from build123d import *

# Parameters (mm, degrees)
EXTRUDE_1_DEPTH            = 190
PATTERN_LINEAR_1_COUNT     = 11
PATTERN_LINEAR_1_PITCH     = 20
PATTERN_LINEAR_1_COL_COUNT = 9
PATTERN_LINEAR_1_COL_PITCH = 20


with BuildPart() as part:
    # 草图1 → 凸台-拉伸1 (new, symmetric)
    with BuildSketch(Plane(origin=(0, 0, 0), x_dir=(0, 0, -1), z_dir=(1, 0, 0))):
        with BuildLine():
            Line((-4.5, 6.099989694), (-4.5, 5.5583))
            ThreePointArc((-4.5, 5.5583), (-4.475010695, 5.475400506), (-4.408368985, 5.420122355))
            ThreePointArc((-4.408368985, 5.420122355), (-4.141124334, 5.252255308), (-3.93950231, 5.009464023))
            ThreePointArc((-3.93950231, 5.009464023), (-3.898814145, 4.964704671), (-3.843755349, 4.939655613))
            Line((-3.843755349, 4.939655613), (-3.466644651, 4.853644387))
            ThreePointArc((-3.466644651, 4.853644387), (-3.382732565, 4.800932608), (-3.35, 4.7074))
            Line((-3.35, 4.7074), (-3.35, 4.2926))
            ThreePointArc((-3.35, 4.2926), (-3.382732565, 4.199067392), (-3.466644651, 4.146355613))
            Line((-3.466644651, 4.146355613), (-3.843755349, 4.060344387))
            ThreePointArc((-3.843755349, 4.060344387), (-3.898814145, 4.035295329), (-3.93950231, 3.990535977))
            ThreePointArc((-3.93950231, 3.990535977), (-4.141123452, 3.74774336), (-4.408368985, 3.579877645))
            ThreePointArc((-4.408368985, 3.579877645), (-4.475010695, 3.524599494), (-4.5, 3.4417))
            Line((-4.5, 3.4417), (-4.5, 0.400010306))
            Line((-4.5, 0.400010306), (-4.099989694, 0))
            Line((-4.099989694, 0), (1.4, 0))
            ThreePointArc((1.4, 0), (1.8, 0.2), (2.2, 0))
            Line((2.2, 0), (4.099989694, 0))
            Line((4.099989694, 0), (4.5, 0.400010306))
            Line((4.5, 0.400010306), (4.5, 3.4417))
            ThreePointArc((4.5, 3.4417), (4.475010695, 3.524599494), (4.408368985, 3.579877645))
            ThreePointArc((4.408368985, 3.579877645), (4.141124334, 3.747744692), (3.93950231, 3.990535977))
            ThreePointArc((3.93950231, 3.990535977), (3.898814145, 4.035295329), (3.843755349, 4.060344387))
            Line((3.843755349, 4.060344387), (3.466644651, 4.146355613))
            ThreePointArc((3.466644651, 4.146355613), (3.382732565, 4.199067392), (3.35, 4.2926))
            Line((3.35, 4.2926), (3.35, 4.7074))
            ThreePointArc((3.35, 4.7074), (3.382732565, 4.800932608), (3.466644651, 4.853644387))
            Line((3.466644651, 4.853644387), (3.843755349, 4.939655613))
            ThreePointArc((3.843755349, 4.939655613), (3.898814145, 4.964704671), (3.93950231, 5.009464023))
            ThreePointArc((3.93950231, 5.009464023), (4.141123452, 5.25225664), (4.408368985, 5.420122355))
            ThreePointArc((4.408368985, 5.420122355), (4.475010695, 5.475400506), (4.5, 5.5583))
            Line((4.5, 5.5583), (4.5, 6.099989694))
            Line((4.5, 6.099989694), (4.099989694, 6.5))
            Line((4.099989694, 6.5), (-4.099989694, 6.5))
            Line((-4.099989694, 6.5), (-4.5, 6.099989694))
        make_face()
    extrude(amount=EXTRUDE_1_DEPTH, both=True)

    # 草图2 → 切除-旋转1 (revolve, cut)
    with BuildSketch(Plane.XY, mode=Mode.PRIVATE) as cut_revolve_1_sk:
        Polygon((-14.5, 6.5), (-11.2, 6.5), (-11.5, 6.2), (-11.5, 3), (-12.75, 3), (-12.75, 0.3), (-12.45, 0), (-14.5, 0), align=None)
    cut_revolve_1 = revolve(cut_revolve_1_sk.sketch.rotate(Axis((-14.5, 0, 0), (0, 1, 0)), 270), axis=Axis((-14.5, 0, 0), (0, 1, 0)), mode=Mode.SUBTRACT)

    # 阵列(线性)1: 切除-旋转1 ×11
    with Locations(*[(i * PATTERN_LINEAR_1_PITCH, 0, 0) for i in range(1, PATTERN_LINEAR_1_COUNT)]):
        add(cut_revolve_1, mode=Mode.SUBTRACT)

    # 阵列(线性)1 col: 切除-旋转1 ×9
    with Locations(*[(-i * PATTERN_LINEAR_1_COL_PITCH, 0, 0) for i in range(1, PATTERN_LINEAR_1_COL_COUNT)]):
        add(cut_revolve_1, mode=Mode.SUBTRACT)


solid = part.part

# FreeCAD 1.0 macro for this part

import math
import FreeCAD as App
import Part
import Sketcher
from FreeCAD import Vector
Q = App.Units.Quantity


def add_polygon(sketch, points):
    """Adds a closed chain of lines whose ends are joined by coincident constraints."""
    first, n = sketch.GeometryCount, len(points)
    for a, b in zip(points, points[1:] + points[:1]):
        sketch.addGeometry(Part.LineSegment(App.Vector(*a, 0), App.Vector(*b, 0)), False)
    for i in range(n):
        sketch.addConstraint(Sketcher.Constraint("Coincident", first + i, 2, first + (i + 1) % n, 1))

doc = App.newDocument("Part")
body = doc.addObject("PartDesign::Body", "Body")

sketch1 = doc.addObject("Sketcher::SketchObject", "Sketch")
body.addObject(sketch1)
sketch1.AttachmentSupport = (doc.YZ_Plane, [""])
sketch1.MapMode = "FlatFace"
sketch1.addGeometry([
    Part.LineSegment(Vector(6.1, 4.5, 0), Vector(5.56, 4.5, 0)),
    Part.ArcOfCircle(Part.Circle(Vector(5.56, 4.35, 0), Vector(0, 0, 1), 0.15), math.radians(90), math.radians(157)),
    Part.ArcOfCircle(Part.Circle(Vector(4.5, 4.8, 0), Vector(0, 0, 1), 1), math.radians(-59), math.radians(-23)),
    Part.ArcOfCircle(Part.Circle(Vector(5.09, 3.81, 0), Vector(0, 0, 1), 0.15), math.radians(121), math.radians(167)),
    Part.LineSegment(Vector(4.94, 3.84, 0), Vector(4.85, 3.47, 0)),
    Part.ArcOfCircle(Part.Circle(Vector(4.71, 3.5, 0), Vector(0, 0, 1), 0.15), math.radians(-90), math.radians(-13)),
    Part.LineSegment(Vector(4.71, 3.35, 0), Vector(4.29, 3.35, 0)),
    Part.ArcOfCircle(Part.Circle(Vector(4.29, 3.5, 0), Vector(0, 0, 1), 0.15), math.radians(-167), math.radians(-90)),
    Part.LineSegment(Vector(4.15, 3.47, 0), Vector(4.06, 3.84, 0)),
    Part.ArcOfCircle(Part.Circle(Vector(3.91, 3.81, 0), Vector(0, 0, 1), 0.15), math.radians(13), math.radians(59)),
    Part.ArcOfCircle(Part.Circle(Vector(4.5, 4.8, 0), Vector(0, 0, 1), 1), math.radians(-157), math.radians(-121)),
    Part.ArcOfCircle(Part.Circle(Vector(3.44, 4.35, 0), Vector(0, 0, 1), 0.15), math.radians(23), math.radians(90)),
    Part.LineSegment(Vector(3.44, 4.5, 0), Vector(0.4, 4.5, 0)),
    Part.LineSegment(Vector(0.4, 4.5, 0), Vector(0, 4.1, 0)),
    Part.LineSegment(Vector(0, 4.1, 0), Vector(0, -1.4, 0)),
    Part.ArcOfCircle(Part.Circle(Vector(-0.3, -1.8, 0), Vector(0, 0, 1), 0.5), math.radians(-53), math.radians(53)),
    Part.LineSegment(Vector(0, -2.2, 0), Vector(0, -4.1, 0)),
    Part.LineSegment(Vector(0, -4.1, 0), Vector(0.4, -4.5, 0)),
    Part.LineSegment(Vector(0.4, -4.5, 0), Vector(3.44, -4.5, 0)),
    Part.ArcOfCircle(Part.Circle(Vector(3.44, -4.35, 0), Vector(0, 0, 1), 0.15), math.radians(-90), math.radians(-23)),
    Part.ArcOfCircle(Part.Circle(Vector(4.5, -4.8, 0), Vector(0, 0, 1), 1), math.radians(121), math.radians(157)),
    Part.ArcOfCircle(Part.Circle(Vector(3.91, -3.81, 0), Vector(0, 0, 1), 0.15), math.radians(-59), math.radians(-13)),
    Part.LineSegment(Vector(4.06, -3.84, 0), Vector(4.15, -3.47, 0)),
    Part.ArcOfCircle(Part.Circle(Vector(4.29, -3.5, 0), Vector(0, 0, 1), 0.15), math.radians(90), math.radians(167)),
    Part.LineSegment(Vector(4.29, -3.35, 0), Vector(4.71, -3.35, 0)),
    Part.ArcOfCircle(Part.Circle(Vector(4.71, -3.5, 0), Vector(0, 0, 1), 0.15), math.radians(13), math.radians(90)),
    Part.LineSegment(Vector(4.85, -3.47, 0), Vector(4.94, -3.84, 0)),
    Part.ArcOfCircle(Part.Circle(Vector(5.09, -3.81, 0), Vector(0, 0, 1), 0.15), math.radians(-167), math.radians(-121)),
    Part.ArcOfCircle(Part.Circle(Vector(4.5, -4.8, 0), Vector(0, 0, 1), 1), math.radians(23), math.radians(59)),
    Part.ArcOfCircle(Part.Circle(Vector(5.56, -4.35, 0), Vector(0, 0, 1), 0.15), math.radians(-157), math.radians(-90)),
    Part.LineSegment(Vector(5.56, -4.5, 0), Vector(6.1, -4.5, 0)),
    Part.LineSegment(Vector(6.1, -4.5, 0), Vector(6.5, -4.1, 0)),
    Part.LineSegment(Vector(6.5, -4.1, 0), Vector(6.5, 4.1, 0)),
    Part.LineSegment(Vector(6.5, 4.1, 0), Vector(6.1, 4.5, 0)),
], False)
sketch1.addConstraint([
    Sketcher.Constraint("Tangent", 0, 2, 1, 1),
    Sketcher.Constraint("Coincident", 1, 2, 2, 2),
    Sketcher.Constraint("Coincident", 2, 1, 3, 1),
    Sketcher.Constraint("Coincident", 3, 2, 4, 1),
    Sketcher.Constraint("Tangent", 4, 2, 5, 2),
    Sketcher.Constraint("Tangent", 5, 1, 6, 1),
    Sketcher.Constraint("Tangent", 6, 2, 7, 2),
    Sketcher.Constraint("Tangent", 7, 1, 8, 1),
    Sketcher.Constraint("Coincident", 8, 2, 9, 1),
    Sketcher.Constraint("Coincident", 9, 2, 10, 2),
    Sketcher.Constraint("Coincident", 10, 1, 11, 1),
    Sketcher.Constraint("Tangent", 11, 2, 12, 1),
    Sketcher.Constraint("Coincident", 12, 2, 13, 1),
    Sketcher.Constraint("Coincident", 13, 2, 14, 1),
    Sketcher.Constraint("Coincident", 14, 2, 15, 2),
    Sketcher.Constraint("Coincident", 15, 1, 16, 1),
    Sketcher.Constraint("Coincident", 16, 2, 17, 1),
    Sketcher.Constraint("Coincident", 17, 2, 18, 1),
    Sketcher.Constraint("Tangent", 18, 2, 19, 1),
    Sketcher.Constraint("Coincident", 19, 2, 20, 2),
    Sketcher.Constraint("Coincident", 20, 1, 21, 1),
    Sketcher.Constraint("Coincident", 21, 2, 22, 1),
    Sketcher.Constraint("Tangent", 22, 2, 23, 2),
    Sketcher.Constraint("Tangent", 23, 1, 24, 1),
    Sketcher.Constraint("Tangent", 24, 2, 25, 2),
    Sketcher.Constraint("Tangent", 25, 1, 26, 1),
    Sketcher.Constraint("Coincident", 26, 2, 27, 1),
    Sketcher.Constraint("Coincident", 27, 2, 28, 2),
    Sketcher.Constraint("Coincident", 28, 1, 29, 1),
    Sketcher.Constraint("Tangent", 29, 2, 30, 1),
    Sketcher.Constraint("Coincident", 30, 2, 31, 1),
    Sketcher.Constraint("Coincident", 31, 2, 32, 1),
    Sketcher.Constraint("Coincident", 32, 2, 33, 1),
    Sketcher.Constraint("Coincident", 33, 2, 0, 1),
    Sketcher.Constraint("Horizontal", 0),
    Sketcher.Constraint("Horizontal", 6),
    Sketcher.Constraint("Horizontal", 12),
    Sketcher.Constraint("Vertical", 14),
    Sketcher.Constraint("Vertical", 16),
    Sketcher.Constraint("Horizontal", 18),
    Sketcher.Constraint("Horizontal", 24),
    Sketcher.Constraint("Horizontal", 30),
    Sketcher.Constraint("Vertical", 32),
    Sketcher.Constraint("Equal", 1, 3),
    Sketcher.Constraint("Equal", 3, 5),
    Sketcher.Constraint("Equal", 5, 7),
    Sketcher.Constraint("Equal", 7, 9),
    Sketcher.Constraint("Equal", 9, 11),
    Sketcher.Constraint("Equal", 11, 19),
    Sketcher.Constraint("Equal", 2, 20),
    Sketcher.Constraint("Equal", 19, 21),
    Sketcher.Constraint("Equal", 21, 23),
    Sketcher.Constraint("Equal", 23, 25),
    Sketcher.Constraint("Equal", 25, 27),
    Sketcher.Constraint("Equal", 10, 28),
    Sketcher.Constraint("Equal", 27, 29),
    Sketcher.Constraint("Symmetric", 13, 2, 16, 2, -1, 1),
    Sketcher.Constraint("Symmetric", 11, 3, 19, 3, -1),
    Sketcher.Constraint("Symmetric", 2, 3, 20, 3, -1),
    Sketcher.Constraint("Symmetric", 9, 3, 21, 3, -1),
    Sketcher.Constraint("Symmetric", 7, 3, 23, 3, -1),
    Sketcher.Constraint("Symmetric", 3, 3, 27, 3, -1),
    Sketcher.Constraint("Symmetric", 1, 3, 29, 3, -1),
    Sketcher.Constraint("PointOnObject", 13, 2, -2),
    Sketcher.Constraint("Perpendicular", 13, 17),
    Sketcher.Constraint("Parallel", 4, 22),
    Sketcher.Constraint("Parallel", 8, 26),
    Sketcher.Constraint("Perpendicular", 17, 31),
    Sketcher.Constraint("Perpendicular", 31, 33),
    Sketcher.Constraint("Horizontal", 3, 3, 9, 3),
    Sketcher.Constraint("Horizontal", 1, 3, 11, 3),
    Sketcher.Constraint("Horizontal", 3, 2, 8, 2),
    Sketcher.Constraint("Horizontal", 2, 1, 9, 2),
    Sketcher.Constraint("Horizontal", 1, 2, 10, 1),
    Sketcher.Constraint("Horizontal", 21, 2, 26, 2),
    Sketcher.Constraint("Horizontal", 20, 1, 27, 2),
    Sketcher.Constraint("Horizontal", 19, 2, 28, 1),
    Sketcher.Constraint("Horizontal", 16, 2, 31, 2),
    Sketcher.Constraint("Horizontal", 13, 2, 32, 2),
    Sketcher.Constraint("Vertical", 12, 2, 17, 2),
    Sketcher.Constraint("Vertical", 10, 1, 19, 2),
    Sketcher.Constraint("Vertical", 9, 2, 20, 1),
    Sketcher.Constraint("Vertical", 8, 2, 21, 2),
    Sketcher.Constraint("Radius", 2, 1.0),
    Sketcher.Constraint("Radius", 15, 0.5),
    Sketcher.Constraint("Radius", 1, 0.15),
    Sketcher.Constraint("DistanceY", 23, 3, 7, 3, 7.0),
    Sketcher.Constraint("DistanceY", 5, 3, 0, 2, 1.0),
    Sketcher.Constraint("DistanceX", 15, 3, -1, 1, 0.3),
    Sketcher.Constraint("DistanceY", 15, 3, -1, 1, 1.8),
    Sketcher.Constraint("DistanceX", -1, 1, 31, 2, 6.5),
    Sketcher.Constraint("Radius", 10, 0.99997),
    Sketcher.Constraint("DistanceX", 6, 2, 6, 1, 0.4148),
    Sketcher.Constraint("Distance", 13, 0.5657),
    Sketcher.Constraint("DistanceX", 0, 2, 0, 1, 0.54169),
    Sketcher.Constraint("DistanceX", 12, 2, 12, 1, 3.04169),
    Sketcher.Constraint("DistanceY", 4, 2, 3, 3, 0.3438),
    Sketcher.Constraint("DistanceX", 10, 1, 10, 3, 0.920102),
    Sketcher.Constraint("DistanceY", 3, 3, 2, 1, 0.129058),
    Sketcher.Constraint("DistanceX", 3, 2, 2, 1, 0.069808),
])
pad1 = doc.addObject("PartDesign::Pad", "Pad")
body.addObject(pad1)
pad1.Profile = sketch1
pad1.Length = 380
pad1.Midplane = True

sketch2 = doc.addObject("Sketcher::SketchObject", "Sketch001")
body.addObject(sketch2)
sketch2.AttachmentSupport = (doc.XY_Plane, [""])
sketch2.MapMode = "FlatFace"
add_polygon(sketch2, [(-11.2, 6.5), (-14.5, 6.5), (-14.5, 0), (-12.45, 0), (-12.75, 0.3), (-12.75, 3), (-11.5, 3), (-11.5, 6.2)])
sketch2.addGeometry(Part.LineSegment(Vector(-14.5, 0, 0), Vector(-14.5, 6.5, 0)), True)
sketch2.addConstraint([
    Sketcher.Constraint("Horizontal", 0),
    Sketcher.Constraint("Vertical", 1),
    Sketcher.Constraint("Horizontal", 2),
    Sketcher.Constraint("Vertical", 4),
    Sketcher.Constraint("Horizontal", 5),
    Sketcher.Constraint("Vertical", 6),
    Sketcher.Constraint("Vertical", 8),
    Sketcher.Constraint("Coincident", 8, 1, 1, 2),
    Sketcher.Constraint("PointOnObject", 1, 2, -1),
    Sketcher.Constraint("Perpendicular", 3, 7),
    Sketcher.Constraint("Horizontal", 7, 2, 8, 2),
    Sketcher.Constraint("Equal", 3, 7),
    Sketcher.Constraint("Angle", 3, Q("135 deg")),
    Sketcher.Constraint("DistanceX", 0, 2, 0, 1, 3.3),
    Sketcher.Constraint("DistanceY", 1, 2, 1, 1, 6.5),
    Sketcher.Constraint("DistanceY", 4, 1, 4, 2, 2.7),
    Sketcher.Constraint("DistanceY", 6, 1, 6, 2, 3.2),
    Sketcher.Constraint("DistanceX", 2, 1, 2, 2, 2.05),
    Sketcher.Constraint("DistanceX", 0, 2, -1, 1, 14.5),
])
groove = doc.addObject("PartDesign::Groove", "Groove")
body.addObject(groove)
groove.Profile = sketch2
groove.ReferenceAxis = (sketch2, ["Axis0"])
groove.Angle = 360
doc.recompute()

linearpattern = doc.addObject("PartDesign::LinearPattern", "LinearPattern")
body.addObject(linearpattern)
linearpattern.Originals = [groove]
linearpattern.Direction = (doc.X_Axis, [""])
linearpattern.Mode = "offset"
linearpattern.Offset = 20
linearpattern.Occurrences = 11
body.Tip = linearpattern
doc.recompute()

linearpattern2 = doc.addObject("PartDesign::LinearPattern", "LinearPattern001")
body.addObject(linearpattern2)
linearpattern2.Originals = [groove]
linearpattern2.Direction = (doc.X_Axis, [""])
linearpattern2.Mode = "offset"
linearpattern2.Offset = 20
linearpattern2.Occurrences = 9
linearpattern2.Reversed = True
body.Tip = linearpattern2

doc.recompute()
